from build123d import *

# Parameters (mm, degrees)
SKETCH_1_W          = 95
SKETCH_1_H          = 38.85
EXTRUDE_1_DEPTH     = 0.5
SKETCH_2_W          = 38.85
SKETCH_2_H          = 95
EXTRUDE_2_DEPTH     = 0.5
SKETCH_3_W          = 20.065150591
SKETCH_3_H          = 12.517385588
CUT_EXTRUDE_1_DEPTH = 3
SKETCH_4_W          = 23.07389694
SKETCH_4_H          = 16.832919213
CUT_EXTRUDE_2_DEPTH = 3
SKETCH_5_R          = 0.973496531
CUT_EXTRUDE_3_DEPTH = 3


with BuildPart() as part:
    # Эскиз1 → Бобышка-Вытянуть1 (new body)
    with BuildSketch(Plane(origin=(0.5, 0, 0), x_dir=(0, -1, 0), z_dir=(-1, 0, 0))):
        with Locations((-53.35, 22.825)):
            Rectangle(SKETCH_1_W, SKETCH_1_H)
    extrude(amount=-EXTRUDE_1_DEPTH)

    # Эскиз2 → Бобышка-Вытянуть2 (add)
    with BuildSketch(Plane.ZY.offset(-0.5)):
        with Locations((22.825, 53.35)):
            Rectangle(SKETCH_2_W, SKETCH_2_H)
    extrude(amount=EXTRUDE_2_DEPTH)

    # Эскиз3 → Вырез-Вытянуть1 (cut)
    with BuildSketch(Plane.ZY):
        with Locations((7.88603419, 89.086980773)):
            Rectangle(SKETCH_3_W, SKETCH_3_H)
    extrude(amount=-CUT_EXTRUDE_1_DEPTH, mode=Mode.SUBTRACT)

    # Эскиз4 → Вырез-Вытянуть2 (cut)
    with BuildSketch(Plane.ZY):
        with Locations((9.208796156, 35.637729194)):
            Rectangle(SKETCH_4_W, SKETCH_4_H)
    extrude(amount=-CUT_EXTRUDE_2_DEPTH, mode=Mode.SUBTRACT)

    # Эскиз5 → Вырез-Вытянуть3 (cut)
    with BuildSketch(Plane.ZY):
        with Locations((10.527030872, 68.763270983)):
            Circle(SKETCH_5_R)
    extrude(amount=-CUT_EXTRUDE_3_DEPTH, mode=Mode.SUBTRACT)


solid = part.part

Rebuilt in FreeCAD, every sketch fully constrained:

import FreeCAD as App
import Part
import Sketcher

V = App.Vector

doc = App.newDocument("Part")
body = doc.addObject("PartDesign::Body", "Body")

# Sketch on YZ plane
sketch1 = body.newObject("Sketcher::SketchObject", "Sketch")
sketch1.AttachmentSupport = (doc.getObject("YZ_Plane"), [""])
sketch1.MapMode = "FlatFace"
sketch1.AttachmentOffset = App.Placement(V(0, 0, 0.5), App.Rotation())
sketch1.addGeometry([
    Part.LineSegment(V(101, 42, 0), V(101, 3, 0)),
    Part.LineSegment(V(101, 3, 0), V(6, 3, 0)),
    Part.LineSegment(V(6, 3, 0), V(6, 42, 0)),
    Part.LineSegment(V(6, 42, 0), V(101, 42, 0)),
], False)
sketch1.addConstraint([
    Sketcher.Constraint("Coincident", 0, 2, 1, 1),
    Sketcher.Constraint("Coincident", 1, 2, 2, 1),
    Sketcher.Constraint("Coincident", 2, 2, 3, 1),
    Sketcher.Constraint("Coincident", 3, 2, 0, 1),
    Sketcher.Constraint("Vertical", 0),
    Sketcher.Constraint("Horizontal", 1),
    Sketcher.Constraint("Vertical", 2),
    Sketcher.Constraint("Horizontal", 3),
    Sketcher.Constraint("DistanceX", 1, 2, 1, 1, 95.0),
    Sketcher.Constraint("DistanceY", 0, 2, 0, 1, 38.85),
    Sketcher.Constraint("DistanceY", -1, 1, 0, 2, 3.4),
    Sketcher.Constraint("DistanceX", -1, 1, 0, 2, 100.85),
])
pad1 = body.newObject("PartDesign::Pad", "Pad")
pad1.Profile = sketch1
pad1.Length = 0.5

# Sketch on YZ plane
sketch2 = body.newObject("Sketcher::SketchObject", "Sketch001")
sketch2.AttachmentSupport = (doc.getObject("YZ_Plane"), [""])
sketch2.MapMode = "FlatFace"
sketch2.AttachmentOffset = App.Placement(V(0, 0, 0.5), App.Rotation())
sketch2.addGeometry([
    Part.LineSegment(V(101, 3, 0), V(6, 3, 0)),
    Part.LineSegment(V(6, 3, 0), V(6, 42, 0)),
    Part.LineSegment(V(6, 42, 0), V(101, 42, 0)),
    Part.LineSegment(V(101, 42, 0), V(101, 3, 0)),
], False)
sketch2.addConstraint([
    Sketcher.Constraint("Coincident", 0, 2, 1, 1),
    Sketcher.Constraint("Coincident", 1, 2, 2, 1),
    Sketcher.Constraint("Coincident", 2, 2, 3, 1),
    Sketcher.Constraint("Coincident", 3, 2, 0, 1),
    Sketcher.Constraint("Horizontal", 0),
    Sketcher.Constraint("Vertical", 1),
    Sketcher.Constraint("Horizontal", 2),
    Sketcher.Constraint("Vertical", 3),
    Sketcher.Constraint("DistanceX", 0, 2, 0, 1, 95.0),
    Sketcher.Constraint("DistanceY", 1, 1, 1, 2, 38.85),
    Sketcher.Constraint("DistanceY", -1, 1, 0, 2, 3.4),
    Sketcher.Constraint("DistanceX", -1, 1, 0, 2, 5.85),
])
pad2 = body.newObject("PartDesign::Pad", "Pad001")
pad2.Profile = sketch2
pad2.Length = 0.5
pad2.Reversed = True

# Sketch on YZ plane
sketch3 = body.newObject("Sketcher::SketchObject", "Sketch002")
sketch3.AttachmentSupport = (doc.getObject("YZ_Plane"), [""])
sketch3.MapMode = "FlatFace"
sketch3.addGeometry([
    Part.LineSegment(V(95, -2, 0), V(83, -2, 0)),
    Part.LineSegment(V(83, -2, 0), V(83, 18, 0)),
    Part.LineSegment(V(83, 18, 0), V(95, 18, 0)),
    Part.LineSegment(V(95, 18, 0), V(95, -2, 0)),
], False)
sketch3.addConstraint([
    Sketcher.Constraint("Coincident", 0, 2, 1, 1),
    Sketcher.Constraint("Coincident", 1, 2, 2, 1),
    Sketcher.Constraint("Coincident", 2, 2, 3, 1),
    Sketcher.Constraint("Coincident", 3, 2, 0, 1),
    Sketcher.Constraint("Horizontal", 0),
    Sketcher.Constraint("Vertical", 1),
    Sketcher.Constraint("Horizontal", 2),
    Sketcher.Constraint("Vertical", 3),
    Sketcher.Constraint("DistanceY", 1, 1, 1, 2, 20.065151),
    Sketcher.Constraint("DistanceX", 0, 2, 0, 1, 12.517386),
    Sketcher.Constraint("DistanceY", 0, 2, -1, 1, 2.146541),
    Sketcher.Constraint("DistanceX", -1, 1, 0, 2, 82.828288),
])
pocket1 = body.newObject("PartDesign::Pocket", "Pocket")
pocket1.Profile = sketch3
pocket1.Length = 3
pocket1.Reversed = True

# Sketch on YZ plane
sketch4 = body.newObject("Sketcher::SketchObject", "Sketch003")
sketch4.AttachmentSupport = (doc.getObject("YZ_Plane"), [""])
sketch4.MapMode = "FlatFace"
sketch4.addGeometry([
    Part.LineSegment(V(44, -2, 0), V(27, -2, 0)),
    Part.LineSegment(V(27, -2, 0), V(27, 21, 0)),
    Part.LineSegment(V(27, 21, 0), V(44, 21, 0)),
    Part.LineSegment(V(44, 21, 0), V(44, -2, 0)),
], False)
sketch4.addConstraint([
    Sketcher.Constraint("Coincident", 0, 2, 1, 1),
    Sketcher.Constraint("Coincident", 1, 2, 2, 1),
    Sketcher.Constraint("Coincident", 2, 2, 3, 1),
    Sketcher.Constraint("Coincident", 3, 2, 0, 1),
    Sketcher.Constraint("Horizontal", 0),
    Sketcher.Constraint("Vertical", 1),
    Sketcher.Constraint("Horizontal", 2),
    Sketcher.Constraint("Vertical", 3),
    Sketcher.Constraint("DistanceX", 0, 2, 0, 1, 16.832919),
    Sketcher.Constraint("DistanceY", 1, 1, 1, 2, 23.073897),
    Sketcher.Constraint("DistanceX", -1, 1, 0, 2, 27.22127),
    Sketcher.Constraint("DistanceY", 0, 2, -1, 1, 2.328152),
])
pocket2 = body.newObject("PartDesign::Pocket", "Pocket001")
pocket2.Profile = sketch4
pocket2.Length = 3
pocket2.Reversed = True

# Sketch on YZ plane
sketch5 = body.newObject("Sketcher::SketchObject", "Sketch004")
sketch5.AttachmentSupport = (doc.getObject("YZ_Plane"), [""])
sketch5.MapMode = "FlatFace"
sketch5.addGeometry(Part.Circle(V(68.8, 10.5, 0), V(0, 0, 1), 1), False)
sketch5.addConstraint([
    Sketcher.Constraint("Diameter", 0, 1.946993),
    Sketcher.Constraint("DistanceX", -1, 1, 0, 3, 68.763271),
    Sketcher.Constraint("DistanceY", -1, 1, 0, 3, 10.527031),
])
pocket3 = body.newObject("PartDesign::Pocket", "Pocket002")
pocket3.Profile = sketch5
pocket3.Length = 3
pocket3.Reversed = True

doc.recompute()
